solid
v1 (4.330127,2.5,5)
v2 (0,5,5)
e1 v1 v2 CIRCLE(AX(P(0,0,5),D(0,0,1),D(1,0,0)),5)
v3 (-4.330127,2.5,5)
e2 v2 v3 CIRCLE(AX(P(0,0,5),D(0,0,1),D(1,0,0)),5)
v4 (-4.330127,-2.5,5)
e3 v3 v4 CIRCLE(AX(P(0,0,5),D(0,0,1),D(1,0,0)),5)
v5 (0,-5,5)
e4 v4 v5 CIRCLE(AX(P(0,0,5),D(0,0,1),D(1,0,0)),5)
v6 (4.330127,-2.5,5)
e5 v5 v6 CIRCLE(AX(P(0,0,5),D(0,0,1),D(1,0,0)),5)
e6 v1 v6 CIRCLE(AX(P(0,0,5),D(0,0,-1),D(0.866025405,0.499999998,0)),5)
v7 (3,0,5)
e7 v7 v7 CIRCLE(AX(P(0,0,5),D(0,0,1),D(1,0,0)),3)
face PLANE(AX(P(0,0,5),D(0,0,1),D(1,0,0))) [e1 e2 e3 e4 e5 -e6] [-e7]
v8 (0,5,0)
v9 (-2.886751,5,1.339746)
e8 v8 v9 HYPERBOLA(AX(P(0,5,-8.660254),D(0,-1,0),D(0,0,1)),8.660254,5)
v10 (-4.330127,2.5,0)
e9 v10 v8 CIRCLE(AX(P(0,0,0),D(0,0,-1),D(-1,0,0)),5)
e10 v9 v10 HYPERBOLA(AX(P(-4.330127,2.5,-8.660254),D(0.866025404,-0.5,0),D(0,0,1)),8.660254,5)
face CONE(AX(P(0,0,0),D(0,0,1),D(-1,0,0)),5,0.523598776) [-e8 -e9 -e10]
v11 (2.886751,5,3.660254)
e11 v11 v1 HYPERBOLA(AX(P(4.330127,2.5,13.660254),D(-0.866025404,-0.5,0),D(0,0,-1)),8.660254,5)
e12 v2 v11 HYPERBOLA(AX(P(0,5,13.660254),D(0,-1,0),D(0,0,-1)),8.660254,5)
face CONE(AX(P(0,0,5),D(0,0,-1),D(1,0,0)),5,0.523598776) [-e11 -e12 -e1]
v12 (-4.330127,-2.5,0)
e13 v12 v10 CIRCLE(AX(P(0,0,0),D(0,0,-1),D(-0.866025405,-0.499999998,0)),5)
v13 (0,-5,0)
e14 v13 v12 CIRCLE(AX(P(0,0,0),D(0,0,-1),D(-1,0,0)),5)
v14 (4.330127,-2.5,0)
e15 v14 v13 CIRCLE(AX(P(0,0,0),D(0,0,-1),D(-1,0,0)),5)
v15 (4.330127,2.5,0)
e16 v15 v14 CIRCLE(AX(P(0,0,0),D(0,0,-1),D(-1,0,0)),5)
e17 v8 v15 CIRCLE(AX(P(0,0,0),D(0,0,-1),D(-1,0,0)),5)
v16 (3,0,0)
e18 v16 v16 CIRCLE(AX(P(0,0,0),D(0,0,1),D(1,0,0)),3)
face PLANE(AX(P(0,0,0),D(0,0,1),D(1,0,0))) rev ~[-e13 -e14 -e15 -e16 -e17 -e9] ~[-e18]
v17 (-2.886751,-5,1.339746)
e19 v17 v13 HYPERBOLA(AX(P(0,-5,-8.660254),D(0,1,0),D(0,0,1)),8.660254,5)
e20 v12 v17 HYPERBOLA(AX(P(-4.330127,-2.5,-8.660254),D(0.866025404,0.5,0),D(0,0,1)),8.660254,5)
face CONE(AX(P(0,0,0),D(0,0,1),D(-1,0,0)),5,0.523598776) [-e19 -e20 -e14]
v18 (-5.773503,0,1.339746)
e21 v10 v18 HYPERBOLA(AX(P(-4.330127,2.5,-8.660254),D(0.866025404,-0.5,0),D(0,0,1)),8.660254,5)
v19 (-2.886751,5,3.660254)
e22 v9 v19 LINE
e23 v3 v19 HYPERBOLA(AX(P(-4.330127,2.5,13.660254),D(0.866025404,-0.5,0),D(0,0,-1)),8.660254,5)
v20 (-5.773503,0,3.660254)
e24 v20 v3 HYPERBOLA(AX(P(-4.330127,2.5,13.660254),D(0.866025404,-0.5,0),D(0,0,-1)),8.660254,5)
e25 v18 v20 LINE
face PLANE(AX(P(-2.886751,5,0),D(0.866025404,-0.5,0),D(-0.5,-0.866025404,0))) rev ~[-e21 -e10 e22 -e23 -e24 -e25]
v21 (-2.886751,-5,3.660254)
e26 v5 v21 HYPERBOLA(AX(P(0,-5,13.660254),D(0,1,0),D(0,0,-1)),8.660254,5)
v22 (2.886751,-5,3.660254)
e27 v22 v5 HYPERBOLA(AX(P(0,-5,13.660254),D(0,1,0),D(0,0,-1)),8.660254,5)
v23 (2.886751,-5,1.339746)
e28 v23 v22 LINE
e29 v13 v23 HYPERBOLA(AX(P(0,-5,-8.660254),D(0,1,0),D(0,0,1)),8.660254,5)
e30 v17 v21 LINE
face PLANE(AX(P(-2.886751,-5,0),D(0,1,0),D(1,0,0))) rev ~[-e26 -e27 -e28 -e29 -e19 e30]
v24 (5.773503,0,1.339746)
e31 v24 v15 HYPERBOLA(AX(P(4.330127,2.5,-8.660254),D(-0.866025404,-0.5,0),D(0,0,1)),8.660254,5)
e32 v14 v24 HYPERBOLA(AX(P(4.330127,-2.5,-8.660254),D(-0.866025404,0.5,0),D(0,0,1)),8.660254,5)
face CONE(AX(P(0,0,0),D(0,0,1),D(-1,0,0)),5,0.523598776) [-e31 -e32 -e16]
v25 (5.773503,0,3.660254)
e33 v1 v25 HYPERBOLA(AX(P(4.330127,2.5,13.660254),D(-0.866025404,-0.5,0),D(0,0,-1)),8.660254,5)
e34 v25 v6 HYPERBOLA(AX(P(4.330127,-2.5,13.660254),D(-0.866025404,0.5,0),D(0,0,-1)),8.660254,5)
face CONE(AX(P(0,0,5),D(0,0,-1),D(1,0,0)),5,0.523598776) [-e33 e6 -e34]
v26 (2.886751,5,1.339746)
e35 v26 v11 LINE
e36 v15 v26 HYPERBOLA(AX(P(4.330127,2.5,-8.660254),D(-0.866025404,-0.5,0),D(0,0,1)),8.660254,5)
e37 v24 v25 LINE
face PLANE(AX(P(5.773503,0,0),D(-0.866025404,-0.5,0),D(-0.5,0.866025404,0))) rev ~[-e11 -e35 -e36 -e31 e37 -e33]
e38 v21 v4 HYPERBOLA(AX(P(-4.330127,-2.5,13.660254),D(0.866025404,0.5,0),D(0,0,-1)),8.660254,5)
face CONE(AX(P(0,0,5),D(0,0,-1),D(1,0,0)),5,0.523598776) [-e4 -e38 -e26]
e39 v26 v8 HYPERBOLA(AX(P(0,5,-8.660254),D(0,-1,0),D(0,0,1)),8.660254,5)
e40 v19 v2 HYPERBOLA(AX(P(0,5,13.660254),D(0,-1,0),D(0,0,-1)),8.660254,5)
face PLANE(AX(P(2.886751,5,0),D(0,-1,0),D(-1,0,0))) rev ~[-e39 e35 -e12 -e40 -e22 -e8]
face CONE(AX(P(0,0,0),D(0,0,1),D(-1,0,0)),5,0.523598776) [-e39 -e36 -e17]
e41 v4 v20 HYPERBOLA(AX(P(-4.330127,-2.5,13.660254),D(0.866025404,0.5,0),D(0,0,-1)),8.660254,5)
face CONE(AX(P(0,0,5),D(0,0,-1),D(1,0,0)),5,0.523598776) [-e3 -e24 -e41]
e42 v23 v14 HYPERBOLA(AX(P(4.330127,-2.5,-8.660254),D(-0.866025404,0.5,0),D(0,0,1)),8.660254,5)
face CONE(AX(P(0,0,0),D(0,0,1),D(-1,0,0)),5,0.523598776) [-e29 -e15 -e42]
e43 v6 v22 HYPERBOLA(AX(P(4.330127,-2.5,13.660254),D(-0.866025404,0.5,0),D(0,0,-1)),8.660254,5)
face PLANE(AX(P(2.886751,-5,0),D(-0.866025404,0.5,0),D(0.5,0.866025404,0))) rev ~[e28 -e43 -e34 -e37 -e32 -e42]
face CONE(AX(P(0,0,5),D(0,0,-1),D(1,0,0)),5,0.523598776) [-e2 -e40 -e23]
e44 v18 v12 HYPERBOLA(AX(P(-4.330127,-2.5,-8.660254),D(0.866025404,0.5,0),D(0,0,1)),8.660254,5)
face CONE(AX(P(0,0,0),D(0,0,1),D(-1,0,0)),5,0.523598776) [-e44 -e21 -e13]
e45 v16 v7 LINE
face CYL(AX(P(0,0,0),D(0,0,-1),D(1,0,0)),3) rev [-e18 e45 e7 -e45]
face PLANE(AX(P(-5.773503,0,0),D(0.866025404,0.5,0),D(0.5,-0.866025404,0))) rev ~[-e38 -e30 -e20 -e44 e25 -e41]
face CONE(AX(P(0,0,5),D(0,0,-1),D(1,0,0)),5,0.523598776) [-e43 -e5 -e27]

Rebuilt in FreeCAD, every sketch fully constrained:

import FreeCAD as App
import Part
import Sketcher

V = App.Vector
Q = App.Units.Quantity


def faces_at(feature, points):
    """Names of the faces that lie closest to the given points."""
    faces = feature.Shape.Faces
    near = lambda p: min(range(len(faces)), key=lambda i: faces[i].distToShape(Part.Vertex(*p))[0])
    return sorted({f"Face{near(p) + 1}" for p in points})


def add_polygon(sketch, points):
    """Adds a closed chain of lines whose ends are joined by coincident constraints."""
    first, n = sketch.GeometryCount, len(points)
    for a, b in zip(points, points[1:] + points[:1]):
        sketch.addGeometry(Part.LineSegment(App.Vector(*a, 0), App.Vector(*b, 0)), False)
    for i in range(n):
        sketch.addConstraint(Sketcher.Constraint("Coincident", first + i, 2, first + (i + 1) % n, 1))

doc = App.newDocument("Part")
body = doc.addObject("PartDesign::Body", "Body")

# Sketch on XY plane
sketch1 = body.newObject("Sketcher::SketchObject", "Sketch")
sketch1.AttachmentSupport = (doc.getObject("XY_Plane"), [""])
sketch1.MapMode = "FlatFace"
add_polygon(sketch1, [(5.8, 0), (2.9, 5), (-2.9, 5), (-5.8, 0), (-2.9, -5), (2.9, -5)])  # lines 0-5
sketch1.addGeometry(Part.Circle(V(0, 0, 0), V(0, 0, 1), 3), False)  # 6
sketch1.addConstraint([
    Sketcher.Constraint("Horizontal", 1),
    Sketcher.Constraint("Horizontal", 4),
    Sketcher.Constraint("Coincident", 6, 3, -1, 1),
    Sketcher.Constraint("Symmetric", 0, 2, 3, 2, -1, 1),
    Sketcher.Constraint("Symmetric", 2, 2, 5, 2, -1, 1),
    Sketcher.Constraint("PointOnObject", 2, 2, -1),
    Sketcher.Constraint("Parallel", 2, 5),
    Sketcher.Constraint("Vertical", 1, 2, 3, 2),
    Sketcher.Constraint("Diameter", 6, 6.0),
    Sketcher.Constraint("Angle", 0, Q("120 deg")),
    Sketcher.Constraint("DistanceY", -1, 1, 0, 2, 5.0),
    Sketcher.Constraint("DistanceX", 1, 2, 1, 1, 5.773503),
])
pad1 = body.newObject("PartDesign::Pad", "Pad")
pad1.Profile = sketch1
pad1.Length = 5
body2 = doc.addObject("PartDesign::Body", "Body001")

# Sketch on XY plane
sketch2 = body2.newObject("Sketcher::SketchObject", "Sketch001")
sketch2.AttachmentSupport = (doc.getObject("XY_Plane001"), [""])
sketch2.MapMode = "FlatFace"
sketch2.AttachmentOffset = App.Placement(V(0, 0, 5), App.Rotation())
add_polygon(sketch2, [(-11, 10), (-11, -10), (11, -10), (11, 10)])  # lines 0-3
sketch2.addGeometry(Part.Circle(V(0, 0, 0), V(0, 0, 1), 5), False)  # 4
sketch2.addConstraint([
    Sketcher.Constraint("Vertical", 0),
    Sketcher.Constraint("Horizontal", 1),
    Sketcher.Constraint("Vertical", 2),
    Sketcher.Constraint("Horizontal", 3),
    Sketcher.Constraint("Coincident", 4, 3, -1, 1),
    Sketcher.Constraint("Symmetric", 0, 2, 2, 2, -1, 1),
    Sketcher.Constraint("Diameter", 4, 10.0),
    Sketcher.Constraint("DistanceX", 1, 1, 1, 2, 22.536),
    Sketcher.Constraint("DistanceY", 0, 2, 0, 1, 20.988),
])
pad2 = body2.newObject("PartDesign::Pad", "Pad001")
pad2.Profile = sketch2
pad2.Length = 5
pad2.Reversed = True
doc.recompute()

datumplane = body2.newObject("PartDesign::Plane", "DatumPlane")
datumplane.AttachmentSupport = (doc.getObject("XY_Plane001"), [""])
datumplane.MapMode = "FlatFace"
datumplane.AttachmentOffset = App.Placement(V(0, 0, 5), App.Rotation())
draft = body2.newObject("PartDesign::Draft", "Draft")
draft.Base = (pad2, faces_at(pad2, [
    (0, -10.494, 2.5),
    (11.268, 0, 2.5),
    (0, 10.494, 2.5),
    (-11.268, 0, 2.5),
    (-5, 0, 2.5),
]))
draft.NeutralPlane = (datumplane, [""])
draft.Angle = 30
draft.Reversed = True
doc.recompute()

boolean = body.newObject("PartDesign::Boolean", "Boolean")
boolean.Type = "Cut"
boolean.addObjects([body2])
body3 = doc.addObject("PartDesign::Body", "Body002")

# Sketch on XY plane
sketch3 = body3.newObject("Sketcher::SketchObject", "Sketch002")
sketch3.AttachmentSupport = (doc.getObject("XY_Plane002"), [""])
sketch3.MapMode = "FlatFace"
add_polygon(sketch3, [(11, 10), (11, -10), (-11, -10), (-11, 10)])  # lines 0-3
sketch3.addGeometry(Part.Circle(V(0, 0, 0), V(0, 0, 1), 5), False)  # 4
sketch3.addConstraint([
    Sketcher.Constraint("Vertical", 0),
    Sketcher.Constraint("Horizontal", 1),
    Sketcher.Constraint("Vertical", 2),
    Sketcher.Constraint("Horizontal", 3),
    Sketcher.Constraint("Coincident", 4, 3, -1, 1),
    Sketcher.Constraint("Symmetric", 0, 2, 2, 2, -1, 1),
    Sketcher.Constraint("Diameter", 4, 10.0),
    Sketcher.Constraint("DistanceX", 1, 2, 1, 1, 22.536),
    Sketcher.Constraint("DistanceY", 0, 2, 0, 1, 20.988),
])
pad3 = body3.newObject("PartDesign::Pad", "Pad002")
pad3.Profile = sketch3
pad3.Length = 5
doc.recompute()

draft2 = body3.newObject("PartDesign::Draft", "Draft001")
draft2.Base = (pad3, faces_at(pad3, [
    (0, -10.494, 2.5),
    (-11.268, 0, 2.5),
    (0, 10.494, 2.5),
    (11.268, 0, 2.5),
    (5, 0, 2.5),
]))
draft2.NeutralPlane = (doc.getObject("XY_Plane002"), [""])
draft2.Angle = 30
draft2.Reversed = False
doc.recompute()

boolean2 = body.newObject("PartDesign::Boolean", "Boolean001")
boolean2.Type = "Cut"
boolean2.addObjects([body3])

doc.recompute()
